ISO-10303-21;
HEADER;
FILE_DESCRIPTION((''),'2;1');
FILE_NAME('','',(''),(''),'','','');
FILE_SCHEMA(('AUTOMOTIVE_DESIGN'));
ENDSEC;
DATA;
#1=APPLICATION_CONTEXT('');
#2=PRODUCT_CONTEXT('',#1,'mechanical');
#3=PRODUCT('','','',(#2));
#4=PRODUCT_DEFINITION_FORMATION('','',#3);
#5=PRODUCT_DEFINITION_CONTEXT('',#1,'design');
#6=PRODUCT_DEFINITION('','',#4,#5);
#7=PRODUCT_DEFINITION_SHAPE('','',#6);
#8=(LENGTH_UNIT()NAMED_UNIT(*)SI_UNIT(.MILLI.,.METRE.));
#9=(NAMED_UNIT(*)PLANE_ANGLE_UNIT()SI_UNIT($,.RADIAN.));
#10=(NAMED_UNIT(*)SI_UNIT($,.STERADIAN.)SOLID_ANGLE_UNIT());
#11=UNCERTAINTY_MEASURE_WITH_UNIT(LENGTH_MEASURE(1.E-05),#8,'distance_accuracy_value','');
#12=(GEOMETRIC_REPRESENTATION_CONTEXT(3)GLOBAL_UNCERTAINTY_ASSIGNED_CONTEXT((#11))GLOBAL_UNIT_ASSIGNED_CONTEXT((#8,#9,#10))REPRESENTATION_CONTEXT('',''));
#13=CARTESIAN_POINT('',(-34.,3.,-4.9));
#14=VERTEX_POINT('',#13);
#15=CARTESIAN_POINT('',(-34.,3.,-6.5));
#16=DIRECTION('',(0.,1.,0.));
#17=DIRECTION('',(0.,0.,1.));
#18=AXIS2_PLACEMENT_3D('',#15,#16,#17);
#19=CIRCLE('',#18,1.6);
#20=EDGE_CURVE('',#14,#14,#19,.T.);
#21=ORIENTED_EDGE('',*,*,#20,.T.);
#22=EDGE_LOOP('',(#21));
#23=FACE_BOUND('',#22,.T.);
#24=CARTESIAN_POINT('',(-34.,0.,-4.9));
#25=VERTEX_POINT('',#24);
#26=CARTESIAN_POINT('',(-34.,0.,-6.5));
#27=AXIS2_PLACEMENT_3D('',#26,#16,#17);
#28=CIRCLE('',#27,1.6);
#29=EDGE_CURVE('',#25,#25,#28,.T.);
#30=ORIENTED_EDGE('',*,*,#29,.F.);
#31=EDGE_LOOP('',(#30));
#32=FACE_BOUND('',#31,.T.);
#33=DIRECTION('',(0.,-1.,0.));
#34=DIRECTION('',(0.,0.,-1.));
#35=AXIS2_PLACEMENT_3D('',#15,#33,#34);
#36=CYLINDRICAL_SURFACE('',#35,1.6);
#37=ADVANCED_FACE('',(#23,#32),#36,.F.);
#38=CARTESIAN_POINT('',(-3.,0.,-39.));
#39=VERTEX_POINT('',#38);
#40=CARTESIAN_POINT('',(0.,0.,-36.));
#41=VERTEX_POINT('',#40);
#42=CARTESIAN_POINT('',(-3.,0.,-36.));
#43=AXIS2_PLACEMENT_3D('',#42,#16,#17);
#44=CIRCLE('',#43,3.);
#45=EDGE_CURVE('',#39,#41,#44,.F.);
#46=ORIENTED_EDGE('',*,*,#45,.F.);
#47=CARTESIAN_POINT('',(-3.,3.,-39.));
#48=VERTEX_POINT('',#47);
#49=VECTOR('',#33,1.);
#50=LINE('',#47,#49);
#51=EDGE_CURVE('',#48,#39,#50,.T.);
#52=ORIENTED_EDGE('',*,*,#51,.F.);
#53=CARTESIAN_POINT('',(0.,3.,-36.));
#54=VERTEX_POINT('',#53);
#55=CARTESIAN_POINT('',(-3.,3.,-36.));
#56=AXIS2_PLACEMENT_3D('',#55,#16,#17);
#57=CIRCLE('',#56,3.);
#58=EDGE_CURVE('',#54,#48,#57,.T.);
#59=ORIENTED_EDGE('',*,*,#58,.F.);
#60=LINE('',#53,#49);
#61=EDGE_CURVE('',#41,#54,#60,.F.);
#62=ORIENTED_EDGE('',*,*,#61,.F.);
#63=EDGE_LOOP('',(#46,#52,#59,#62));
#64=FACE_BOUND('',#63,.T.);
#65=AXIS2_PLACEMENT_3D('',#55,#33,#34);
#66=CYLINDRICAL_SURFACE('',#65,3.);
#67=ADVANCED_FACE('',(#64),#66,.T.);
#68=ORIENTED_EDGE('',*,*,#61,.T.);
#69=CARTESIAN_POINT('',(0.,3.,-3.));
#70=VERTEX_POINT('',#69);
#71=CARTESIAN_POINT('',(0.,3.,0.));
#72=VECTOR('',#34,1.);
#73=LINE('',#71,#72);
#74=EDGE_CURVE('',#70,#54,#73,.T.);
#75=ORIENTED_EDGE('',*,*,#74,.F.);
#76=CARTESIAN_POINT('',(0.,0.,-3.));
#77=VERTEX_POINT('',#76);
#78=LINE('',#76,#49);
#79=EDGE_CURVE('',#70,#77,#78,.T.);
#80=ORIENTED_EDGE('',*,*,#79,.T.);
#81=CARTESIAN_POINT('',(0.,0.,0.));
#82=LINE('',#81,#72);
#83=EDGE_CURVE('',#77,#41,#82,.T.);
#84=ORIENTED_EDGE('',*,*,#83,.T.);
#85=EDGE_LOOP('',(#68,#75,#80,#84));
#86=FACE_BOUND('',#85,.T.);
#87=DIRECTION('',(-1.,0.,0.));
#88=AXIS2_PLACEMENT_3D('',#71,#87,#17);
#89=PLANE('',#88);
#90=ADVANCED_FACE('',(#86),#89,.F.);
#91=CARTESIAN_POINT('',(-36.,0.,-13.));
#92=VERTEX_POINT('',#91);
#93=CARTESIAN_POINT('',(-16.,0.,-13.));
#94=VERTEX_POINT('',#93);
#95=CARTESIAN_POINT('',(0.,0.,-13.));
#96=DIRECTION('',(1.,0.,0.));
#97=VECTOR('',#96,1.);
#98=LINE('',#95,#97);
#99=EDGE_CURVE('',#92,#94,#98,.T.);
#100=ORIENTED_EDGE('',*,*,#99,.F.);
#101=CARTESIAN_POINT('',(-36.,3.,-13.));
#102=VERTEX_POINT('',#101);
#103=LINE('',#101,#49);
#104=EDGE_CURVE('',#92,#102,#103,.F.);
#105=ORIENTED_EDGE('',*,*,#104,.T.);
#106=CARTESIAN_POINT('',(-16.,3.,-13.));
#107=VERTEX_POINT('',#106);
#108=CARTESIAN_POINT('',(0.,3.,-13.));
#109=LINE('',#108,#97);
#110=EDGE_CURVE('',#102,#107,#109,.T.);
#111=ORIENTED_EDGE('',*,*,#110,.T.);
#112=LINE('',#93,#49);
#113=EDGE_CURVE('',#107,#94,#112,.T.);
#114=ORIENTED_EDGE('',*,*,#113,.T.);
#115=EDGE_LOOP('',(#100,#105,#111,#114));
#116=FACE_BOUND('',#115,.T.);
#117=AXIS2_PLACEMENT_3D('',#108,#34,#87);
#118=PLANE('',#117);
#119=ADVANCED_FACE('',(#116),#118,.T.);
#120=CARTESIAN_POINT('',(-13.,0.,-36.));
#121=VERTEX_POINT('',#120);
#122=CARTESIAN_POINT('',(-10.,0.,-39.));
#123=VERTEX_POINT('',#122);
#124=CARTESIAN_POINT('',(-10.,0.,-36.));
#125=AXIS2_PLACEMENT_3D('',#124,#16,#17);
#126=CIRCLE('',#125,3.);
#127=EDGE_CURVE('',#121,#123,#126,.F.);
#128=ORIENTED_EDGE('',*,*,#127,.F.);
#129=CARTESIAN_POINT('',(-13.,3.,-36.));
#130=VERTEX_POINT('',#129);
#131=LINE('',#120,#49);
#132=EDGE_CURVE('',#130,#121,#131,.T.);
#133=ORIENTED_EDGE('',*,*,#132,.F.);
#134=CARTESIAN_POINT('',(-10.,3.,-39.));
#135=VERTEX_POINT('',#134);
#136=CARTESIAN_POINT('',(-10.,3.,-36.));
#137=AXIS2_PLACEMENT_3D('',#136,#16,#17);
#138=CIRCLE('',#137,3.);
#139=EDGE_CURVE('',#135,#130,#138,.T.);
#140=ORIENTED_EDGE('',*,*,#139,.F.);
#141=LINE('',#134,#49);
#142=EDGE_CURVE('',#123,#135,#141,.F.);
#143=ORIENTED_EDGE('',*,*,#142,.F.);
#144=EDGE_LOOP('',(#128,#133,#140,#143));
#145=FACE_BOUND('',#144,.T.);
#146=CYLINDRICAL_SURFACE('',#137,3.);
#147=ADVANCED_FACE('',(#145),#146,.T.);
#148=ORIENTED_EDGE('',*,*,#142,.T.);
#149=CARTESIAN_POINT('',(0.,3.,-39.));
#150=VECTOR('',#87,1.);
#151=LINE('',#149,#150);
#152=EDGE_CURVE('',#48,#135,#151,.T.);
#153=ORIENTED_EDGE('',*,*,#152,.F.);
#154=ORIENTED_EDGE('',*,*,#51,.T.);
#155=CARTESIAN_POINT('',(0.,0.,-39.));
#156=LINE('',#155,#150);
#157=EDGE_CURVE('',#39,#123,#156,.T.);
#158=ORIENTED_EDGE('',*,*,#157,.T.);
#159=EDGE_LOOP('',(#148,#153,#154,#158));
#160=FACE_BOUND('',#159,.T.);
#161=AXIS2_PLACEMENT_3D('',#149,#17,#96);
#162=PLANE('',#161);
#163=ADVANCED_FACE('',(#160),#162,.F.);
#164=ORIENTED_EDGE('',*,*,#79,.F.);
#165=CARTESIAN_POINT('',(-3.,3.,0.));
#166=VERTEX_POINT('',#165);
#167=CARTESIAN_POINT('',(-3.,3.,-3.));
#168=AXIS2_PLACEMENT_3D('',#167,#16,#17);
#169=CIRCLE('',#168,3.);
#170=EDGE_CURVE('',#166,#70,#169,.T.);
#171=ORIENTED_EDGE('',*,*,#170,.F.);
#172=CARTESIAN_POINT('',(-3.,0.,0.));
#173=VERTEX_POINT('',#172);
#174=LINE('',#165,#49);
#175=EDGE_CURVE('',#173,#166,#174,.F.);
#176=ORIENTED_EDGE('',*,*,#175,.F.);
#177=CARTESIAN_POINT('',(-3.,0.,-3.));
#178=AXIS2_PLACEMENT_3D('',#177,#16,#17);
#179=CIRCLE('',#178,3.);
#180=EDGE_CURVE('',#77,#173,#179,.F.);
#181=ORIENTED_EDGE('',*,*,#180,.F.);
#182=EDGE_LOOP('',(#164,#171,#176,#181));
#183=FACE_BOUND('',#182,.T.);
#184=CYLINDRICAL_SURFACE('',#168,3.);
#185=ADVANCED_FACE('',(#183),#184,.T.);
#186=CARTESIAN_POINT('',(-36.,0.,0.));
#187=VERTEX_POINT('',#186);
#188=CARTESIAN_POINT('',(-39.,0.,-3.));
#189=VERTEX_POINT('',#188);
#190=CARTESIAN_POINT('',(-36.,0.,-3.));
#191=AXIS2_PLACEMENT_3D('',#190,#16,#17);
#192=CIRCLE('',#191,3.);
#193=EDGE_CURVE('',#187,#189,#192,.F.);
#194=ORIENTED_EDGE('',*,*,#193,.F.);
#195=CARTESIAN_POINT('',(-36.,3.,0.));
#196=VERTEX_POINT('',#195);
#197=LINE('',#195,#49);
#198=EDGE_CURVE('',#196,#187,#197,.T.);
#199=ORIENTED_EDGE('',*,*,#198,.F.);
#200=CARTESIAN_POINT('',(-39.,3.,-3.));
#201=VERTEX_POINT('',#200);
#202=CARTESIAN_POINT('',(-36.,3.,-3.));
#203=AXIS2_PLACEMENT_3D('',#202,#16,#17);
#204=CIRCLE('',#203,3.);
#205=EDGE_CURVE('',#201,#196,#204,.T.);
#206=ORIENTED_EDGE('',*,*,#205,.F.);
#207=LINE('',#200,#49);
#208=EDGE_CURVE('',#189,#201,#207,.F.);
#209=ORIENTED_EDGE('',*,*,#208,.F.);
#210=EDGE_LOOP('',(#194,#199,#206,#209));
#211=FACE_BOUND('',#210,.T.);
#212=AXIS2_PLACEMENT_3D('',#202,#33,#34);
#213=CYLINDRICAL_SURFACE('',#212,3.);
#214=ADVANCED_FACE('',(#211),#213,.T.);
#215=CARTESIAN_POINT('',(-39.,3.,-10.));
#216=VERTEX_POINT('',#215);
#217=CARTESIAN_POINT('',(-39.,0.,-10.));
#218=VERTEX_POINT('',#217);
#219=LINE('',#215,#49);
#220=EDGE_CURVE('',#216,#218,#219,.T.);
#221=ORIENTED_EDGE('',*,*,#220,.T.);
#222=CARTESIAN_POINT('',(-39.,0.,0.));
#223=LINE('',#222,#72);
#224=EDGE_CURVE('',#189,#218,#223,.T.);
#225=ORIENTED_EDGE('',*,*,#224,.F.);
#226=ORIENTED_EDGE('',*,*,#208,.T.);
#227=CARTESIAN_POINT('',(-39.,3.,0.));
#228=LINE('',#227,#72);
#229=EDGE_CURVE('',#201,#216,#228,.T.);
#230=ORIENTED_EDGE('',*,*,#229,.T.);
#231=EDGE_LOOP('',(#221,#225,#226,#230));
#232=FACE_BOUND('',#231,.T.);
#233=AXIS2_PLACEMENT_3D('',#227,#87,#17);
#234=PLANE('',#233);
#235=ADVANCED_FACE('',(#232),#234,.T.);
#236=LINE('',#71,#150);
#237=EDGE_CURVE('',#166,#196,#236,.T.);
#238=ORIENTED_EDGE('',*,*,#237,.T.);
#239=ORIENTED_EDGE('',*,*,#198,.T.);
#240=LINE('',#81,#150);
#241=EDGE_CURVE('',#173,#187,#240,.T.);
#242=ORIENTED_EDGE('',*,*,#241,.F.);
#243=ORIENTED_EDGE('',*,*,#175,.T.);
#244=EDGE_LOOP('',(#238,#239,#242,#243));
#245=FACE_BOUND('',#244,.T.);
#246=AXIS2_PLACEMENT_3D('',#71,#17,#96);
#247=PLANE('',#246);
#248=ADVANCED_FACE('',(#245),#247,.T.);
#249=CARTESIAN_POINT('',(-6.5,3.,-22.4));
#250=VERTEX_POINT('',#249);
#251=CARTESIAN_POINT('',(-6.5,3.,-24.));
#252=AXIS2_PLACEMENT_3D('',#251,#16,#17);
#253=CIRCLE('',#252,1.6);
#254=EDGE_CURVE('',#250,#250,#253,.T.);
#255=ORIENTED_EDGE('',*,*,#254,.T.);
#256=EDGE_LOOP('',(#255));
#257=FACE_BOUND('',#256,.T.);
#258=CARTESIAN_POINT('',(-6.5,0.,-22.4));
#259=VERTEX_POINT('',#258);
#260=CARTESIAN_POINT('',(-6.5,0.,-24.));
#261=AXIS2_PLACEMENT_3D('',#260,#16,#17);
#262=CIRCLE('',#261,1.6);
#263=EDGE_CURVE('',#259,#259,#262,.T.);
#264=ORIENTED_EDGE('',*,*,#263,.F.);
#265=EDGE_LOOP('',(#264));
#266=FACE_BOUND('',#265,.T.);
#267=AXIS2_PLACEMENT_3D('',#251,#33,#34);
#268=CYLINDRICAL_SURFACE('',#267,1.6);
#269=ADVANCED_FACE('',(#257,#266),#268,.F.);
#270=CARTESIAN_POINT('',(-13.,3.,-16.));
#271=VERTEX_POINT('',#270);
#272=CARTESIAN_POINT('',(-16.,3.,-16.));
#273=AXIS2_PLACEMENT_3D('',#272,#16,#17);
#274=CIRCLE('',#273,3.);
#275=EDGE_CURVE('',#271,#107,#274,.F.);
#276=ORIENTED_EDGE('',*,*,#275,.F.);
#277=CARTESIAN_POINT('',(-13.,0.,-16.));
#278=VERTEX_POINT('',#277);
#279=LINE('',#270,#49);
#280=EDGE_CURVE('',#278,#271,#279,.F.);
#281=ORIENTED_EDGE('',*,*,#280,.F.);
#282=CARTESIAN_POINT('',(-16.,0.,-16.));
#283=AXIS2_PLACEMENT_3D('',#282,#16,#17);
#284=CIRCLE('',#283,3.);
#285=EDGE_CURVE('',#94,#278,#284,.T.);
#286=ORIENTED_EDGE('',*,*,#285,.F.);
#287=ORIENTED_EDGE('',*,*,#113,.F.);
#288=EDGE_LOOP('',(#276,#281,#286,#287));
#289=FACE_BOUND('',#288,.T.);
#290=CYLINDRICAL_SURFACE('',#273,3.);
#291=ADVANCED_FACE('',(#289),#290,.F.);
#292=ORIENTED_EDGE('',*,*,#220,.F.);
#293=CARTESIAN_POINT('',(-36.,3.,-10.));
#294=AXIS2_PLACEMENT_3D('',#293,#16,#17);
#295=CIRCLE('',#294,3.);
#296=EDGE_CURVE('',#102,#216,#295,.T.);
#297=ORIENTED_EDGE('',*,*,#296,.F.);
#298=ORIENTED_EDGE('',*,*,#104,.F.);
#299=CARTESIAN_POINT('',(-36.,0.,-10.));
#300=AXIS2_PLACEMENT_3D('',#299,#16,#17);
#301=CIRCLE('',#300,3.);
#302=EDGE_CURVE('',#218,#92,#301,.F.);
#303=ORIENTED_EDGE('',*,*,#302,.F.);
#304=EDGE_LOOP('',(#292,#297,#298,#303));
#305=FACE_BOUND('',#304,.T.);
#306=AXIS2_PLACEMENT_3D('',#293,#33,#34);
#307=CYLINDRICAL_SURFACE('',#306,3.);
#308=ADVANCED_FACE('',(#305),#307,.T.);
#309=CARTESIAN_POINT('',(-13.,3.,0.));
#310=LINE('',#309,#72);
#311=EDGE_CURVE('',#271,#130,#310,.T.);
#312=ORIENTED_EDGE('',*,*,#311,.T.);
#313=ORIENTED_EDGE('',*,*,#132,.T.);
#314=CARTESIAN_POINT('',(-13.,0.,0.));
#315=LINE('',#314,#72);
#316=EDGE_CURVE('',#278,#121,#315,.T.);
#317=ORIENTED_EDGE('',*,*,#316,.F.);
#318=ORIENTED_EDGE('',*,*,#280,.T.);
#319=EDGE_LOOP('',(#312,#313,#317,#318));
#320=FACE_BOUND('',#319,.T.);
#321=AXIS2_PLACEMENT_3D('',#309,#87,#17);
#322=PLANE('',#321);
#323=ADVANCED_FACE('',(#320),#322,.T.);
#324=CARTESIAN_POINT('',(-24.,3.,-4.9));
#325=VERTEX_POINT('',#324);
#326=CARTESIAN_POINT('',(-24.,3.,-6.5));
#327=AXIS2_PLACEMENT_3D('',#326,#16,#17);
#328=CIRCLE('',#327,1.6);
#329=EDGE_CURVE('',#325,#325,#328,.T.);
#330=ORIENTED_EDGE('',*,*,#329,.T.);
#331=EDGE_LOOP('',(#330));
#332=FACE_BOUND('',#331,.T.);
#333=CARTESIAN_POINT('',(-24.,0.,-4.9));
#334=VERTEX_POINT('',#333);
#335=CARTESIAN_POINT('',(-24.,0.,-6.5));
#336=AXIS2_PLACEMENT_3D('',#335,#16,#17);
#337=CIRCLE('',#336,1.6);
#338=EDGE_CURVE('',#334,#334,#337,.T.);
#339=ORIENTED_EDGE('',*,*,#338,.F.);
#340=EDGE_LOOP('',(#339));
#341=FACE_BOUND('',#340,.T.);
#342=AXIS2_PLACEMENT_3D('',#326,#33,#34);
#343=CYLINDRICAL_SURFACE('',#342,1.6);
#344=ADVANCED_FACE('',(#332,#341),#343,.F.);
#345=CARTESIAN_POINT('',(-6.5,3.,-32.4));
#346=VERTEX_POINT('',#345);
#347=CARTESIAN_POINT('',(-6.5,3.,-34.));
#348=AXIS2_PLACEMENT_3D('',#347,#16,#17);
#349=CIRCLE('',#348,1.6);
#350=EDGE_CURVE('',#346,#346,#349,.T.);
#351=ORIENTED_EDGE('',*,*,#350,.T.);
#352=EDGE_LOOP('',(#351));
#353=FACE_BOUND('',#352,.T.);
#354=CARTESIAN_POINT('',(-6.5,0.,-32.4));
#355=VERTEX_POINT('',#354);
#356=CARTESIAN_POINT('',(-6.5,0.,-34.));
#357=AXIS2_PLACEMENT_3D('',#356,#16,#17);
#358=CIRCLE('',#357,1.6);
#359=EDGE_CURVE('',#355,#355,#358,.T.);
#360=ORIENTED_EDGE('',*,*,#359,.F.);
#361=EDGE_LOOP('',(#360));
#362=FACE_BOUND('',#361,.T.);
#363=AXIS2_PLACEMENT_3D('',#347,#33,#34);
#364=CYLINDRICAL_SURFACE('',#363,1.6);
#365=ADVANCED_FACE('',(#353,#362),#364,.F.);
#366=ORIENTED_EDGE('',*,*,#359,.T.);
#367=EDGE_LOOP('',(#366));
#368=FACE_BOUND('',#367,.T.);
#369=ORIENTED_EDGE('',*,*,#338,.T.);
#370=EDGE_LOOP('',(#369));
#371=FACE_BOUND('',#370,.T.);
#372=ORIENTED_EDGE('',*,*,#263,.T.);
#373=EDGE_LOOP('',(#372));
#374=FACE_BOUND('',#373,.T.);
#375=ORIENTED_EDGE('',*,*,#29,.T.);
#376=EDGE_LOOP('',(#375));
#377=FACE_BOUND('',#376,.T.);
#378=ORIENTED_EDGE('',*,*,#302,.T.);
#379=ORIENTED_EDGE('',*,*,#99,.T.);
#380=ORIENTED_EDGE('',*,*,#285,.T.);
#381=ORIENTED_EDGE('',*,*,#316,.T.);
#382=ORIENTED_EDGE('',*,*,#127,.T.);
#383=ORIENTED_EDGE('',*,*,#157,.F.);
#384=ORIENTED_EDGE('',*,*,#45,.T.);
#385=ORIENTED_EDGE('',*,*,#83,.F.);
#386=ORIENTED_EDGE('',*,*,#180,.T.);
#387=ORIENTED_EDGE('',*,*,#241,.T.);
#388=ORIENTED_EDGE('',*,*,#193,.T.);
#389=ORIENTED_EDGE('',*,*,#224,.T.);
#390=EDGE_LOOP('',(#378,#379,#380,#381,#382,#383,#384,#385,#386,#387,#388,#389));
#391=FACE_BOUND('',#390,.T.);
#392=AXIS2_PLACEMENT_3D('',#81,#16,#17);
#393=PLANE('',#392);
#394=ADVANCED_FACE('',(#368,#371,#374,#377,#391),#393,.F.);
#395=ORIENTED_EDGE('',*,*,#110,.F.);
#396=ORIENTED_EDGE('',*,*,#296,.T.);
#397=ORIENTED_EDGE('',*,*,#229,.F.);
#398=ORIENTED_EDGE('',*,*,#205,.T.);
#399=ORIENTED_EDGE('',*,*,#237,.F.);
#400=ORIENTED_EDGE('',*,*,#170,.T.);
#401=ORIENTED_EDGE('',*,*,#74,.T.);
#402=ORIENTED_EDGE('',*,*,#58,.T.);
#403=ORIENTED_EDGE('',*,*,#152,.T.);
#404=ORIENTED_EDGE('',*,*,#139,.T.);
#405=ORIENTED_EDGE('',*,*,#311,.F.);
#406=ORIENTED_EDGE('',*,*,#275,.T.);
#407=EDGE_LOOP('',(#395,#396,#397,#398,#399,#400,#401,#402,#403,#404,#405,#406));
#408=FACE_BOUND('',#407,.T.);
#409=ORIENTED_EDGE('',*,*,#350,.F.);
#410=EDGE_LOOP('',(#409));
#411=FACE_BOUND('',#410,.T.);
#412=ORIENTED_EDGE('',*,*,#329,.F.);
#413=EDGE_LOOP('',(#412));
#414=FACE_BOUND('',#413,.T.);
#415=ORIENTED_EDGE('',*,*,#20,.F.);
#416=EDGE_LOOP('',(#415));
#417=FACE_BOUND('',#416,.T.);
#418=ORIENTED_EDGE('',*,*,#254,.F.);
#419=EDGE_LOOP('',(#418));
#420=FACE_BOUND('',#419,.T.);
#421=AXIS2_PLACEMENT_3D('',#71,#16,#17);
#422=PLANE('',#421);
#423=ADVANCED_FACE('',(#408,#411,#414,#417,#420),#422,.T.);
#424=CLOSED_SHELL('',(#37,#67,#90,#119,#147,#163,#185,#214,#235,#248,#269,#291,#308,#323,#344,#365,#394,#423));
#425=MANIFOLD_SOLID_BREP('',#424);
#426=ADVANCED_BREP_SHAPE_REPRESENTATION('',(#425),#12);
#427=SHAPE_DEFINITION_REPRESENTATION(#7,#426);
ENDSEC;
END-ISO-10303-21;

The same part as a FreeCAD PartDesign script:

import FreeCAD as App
import Part
import Sketcher
from FreeCAD import Vector


def edges_at(feature, points):
    """Names of the edges that pass closest to the given points."""
    edges = feature.Shape.Edges
    near = lambda p: min(range(len(edges)), key=lambda i: edges[i].distToShape(Part.Vertex(*p))[0])
    return sorted({f"Edge{near(p) + 1}" for p in points})

doc = App.newDocument("Part")
body = doc.addObject("PartDesign::Body", "Body")

# Sketch on XZ plane
sketch1 = body.newObject("Sketcher::SketchObject", "Sketch")
sketch1.AttachmentSupport = (doc.getObject("XZ_Plane"), [""])
sketch1.MapMode = "FlatFace"
sketch1.addGeometry(Part.LineSegment(Vector(0, 0, 0), Vector(0, -39, 0)), False)
sketch1.addGeometry(Part.LineSegment(Vector(0, -39, 0), Vector(-13, -39, 0)), False)
sketch1.addGeometry(Part.LineSegment(Vector(-13, -39, 0), Vector(-13, -13, 0)), False)
sketch1.addGeometry(Part.LineSegment(Vector(-13, -13, 0), Vector(-39, -13, 0)), False)
sketch1.addGeometry(Part.LineSegment(Vector(-39, -13, 0), Vector(-39, 0, 0)), False)
sketch1.addGeometry(Part.LineSegment(Vector(-39, 0, 0), Vector(0, 0, 0)), False)
sketch1.addGeometry(Part.Circle(Vector(-34, -6.5, 0), Vector(0, 0, 1), 1.6), False)
sketch1.addGeometry(Part.Circle(Vector(-24, -6.5, 0), Vector(0, 0, 1), 1.6), False)
sketch1.addGeometry(Part.Circle(Vector(-6.5, -24, 0), Vector(0, 0, 1), 1.6), False)
sketch1.addGeometry(Part.Circle(Vector(-6.5, -34, 0), Vector(0, 0, 1), 1.6), False)
sketch1.addConstraint(Sketcher.Constraint("Coincident", 0, 2, 1, 1))
sketch1.addConstraint(Sketcher.Constraint("Coincident", 1, 2, 2, 1))
sketch1.addConstraint(Sketcher.Constraint("Coincident", 2, 2, 3, 1))
sketch1.addConstraint(Sketcher.Constraint("Coincident", 3, 2, 4, 1))
sketch1.addConstraint(Sketcher.Constraint("Coincident", 4, 2, 5, 1))
sketch1.addConstraint(Sketcher.Constraint("Coincident", 5, 2, 0, 1))
sketch1.addConstraint(Sketcher.Constraint("Vertical", 0))
sketch1.addConstraint(Sketcher.Constraint("Horizontal", 1))
sketch1.addConstraint(Sketcher.Constraint("Vertical", 2))
sketch1.addConstraint(Sketcher.Constraint("Horizontal", 3))
sketch1.addConstraint(Sketcher.Constraint("Vertical", 4))
sketch1.addConstraint(Sketcher.Constraint("Horizontal", 5))
sketch1.addConstraint(Sketcher.Constraint("Coincident", 5, 2, -1, 1))
sketch1.addConstraint(Sketcher.Constraint("Equal", 6, 7))
sketch1.addConstraint(Sketcher.Constraint("Equal", 7, 8))
sketch1.addConstraint(Sketcher.Constraint("Equal", 8, 9))
sketch1.addConstraint(Sketcher.Constraint("Horizontal", 6, 3, 7, 3))
sketch1.addConstraint(Sketcher.Constraint("Vertical", 8, 3, 9, 3))
sketch1.addConstraint(Sketcher.Constraint("Equal", 5, 0))
sketch1.addConstraint(Sketcher.Constraint("Equal", 3, 2))
sketch1.addConstraint(Sketcher.Constraint("Diameter", 6, 3.2))
sketch1.addConstraint(Sketcher.Constraint("DistanceX", 1, 2, 1, 1, 13.0))
sketch1.addConstraint(Sketcher.Constraint("DistanceX", 3, 2, 3, 1, 26.0))
sketch1.addConstraint(Sketcher.Constraint("DistanceX", 6, 3, -1, 1, 34.0))
sketch1.addConstraint(Sketcher.Constraint("DistanceX", 7, 3, -1, 1, 24.0))
sketch1.addConstraint(Sketcher.Constraint("DistanceY", 8, 3, -1, 1, 24.0))
sketch1.addConstraint(Sketcher.Constraint("DistanceY", 9, 3, -1, 1, 34.0))
sketch1.addConstraint(Sketcher.Constraint("DistanceY", 6, 3, -1, 1, 6.5))
sketch1.addConstraint(Sketcher.Constraint("DistanceX", 8, 3, -1, 1, 6.5))
pad1 = body.newObject("PartDesign::Pad", "Pad")
pad1.Profile = sketch1
pad1.Length = 3
pad1.Reversed = True
doc.recompute()

fillet = body.newObject("PartDesign::Fillet", "Fillet")
fillet.Base = (pad1, edges_at(pad1, [
    (-13, 1.5, -39),
    (0, 1.5, -39),
    (0, 1.5, 0),
    (-39, 1.5, 0),
    (-39, 1.5, -13),
    (-13, 1.5, -13),
]))
fillet.Radius = 3

doc.recompute()
